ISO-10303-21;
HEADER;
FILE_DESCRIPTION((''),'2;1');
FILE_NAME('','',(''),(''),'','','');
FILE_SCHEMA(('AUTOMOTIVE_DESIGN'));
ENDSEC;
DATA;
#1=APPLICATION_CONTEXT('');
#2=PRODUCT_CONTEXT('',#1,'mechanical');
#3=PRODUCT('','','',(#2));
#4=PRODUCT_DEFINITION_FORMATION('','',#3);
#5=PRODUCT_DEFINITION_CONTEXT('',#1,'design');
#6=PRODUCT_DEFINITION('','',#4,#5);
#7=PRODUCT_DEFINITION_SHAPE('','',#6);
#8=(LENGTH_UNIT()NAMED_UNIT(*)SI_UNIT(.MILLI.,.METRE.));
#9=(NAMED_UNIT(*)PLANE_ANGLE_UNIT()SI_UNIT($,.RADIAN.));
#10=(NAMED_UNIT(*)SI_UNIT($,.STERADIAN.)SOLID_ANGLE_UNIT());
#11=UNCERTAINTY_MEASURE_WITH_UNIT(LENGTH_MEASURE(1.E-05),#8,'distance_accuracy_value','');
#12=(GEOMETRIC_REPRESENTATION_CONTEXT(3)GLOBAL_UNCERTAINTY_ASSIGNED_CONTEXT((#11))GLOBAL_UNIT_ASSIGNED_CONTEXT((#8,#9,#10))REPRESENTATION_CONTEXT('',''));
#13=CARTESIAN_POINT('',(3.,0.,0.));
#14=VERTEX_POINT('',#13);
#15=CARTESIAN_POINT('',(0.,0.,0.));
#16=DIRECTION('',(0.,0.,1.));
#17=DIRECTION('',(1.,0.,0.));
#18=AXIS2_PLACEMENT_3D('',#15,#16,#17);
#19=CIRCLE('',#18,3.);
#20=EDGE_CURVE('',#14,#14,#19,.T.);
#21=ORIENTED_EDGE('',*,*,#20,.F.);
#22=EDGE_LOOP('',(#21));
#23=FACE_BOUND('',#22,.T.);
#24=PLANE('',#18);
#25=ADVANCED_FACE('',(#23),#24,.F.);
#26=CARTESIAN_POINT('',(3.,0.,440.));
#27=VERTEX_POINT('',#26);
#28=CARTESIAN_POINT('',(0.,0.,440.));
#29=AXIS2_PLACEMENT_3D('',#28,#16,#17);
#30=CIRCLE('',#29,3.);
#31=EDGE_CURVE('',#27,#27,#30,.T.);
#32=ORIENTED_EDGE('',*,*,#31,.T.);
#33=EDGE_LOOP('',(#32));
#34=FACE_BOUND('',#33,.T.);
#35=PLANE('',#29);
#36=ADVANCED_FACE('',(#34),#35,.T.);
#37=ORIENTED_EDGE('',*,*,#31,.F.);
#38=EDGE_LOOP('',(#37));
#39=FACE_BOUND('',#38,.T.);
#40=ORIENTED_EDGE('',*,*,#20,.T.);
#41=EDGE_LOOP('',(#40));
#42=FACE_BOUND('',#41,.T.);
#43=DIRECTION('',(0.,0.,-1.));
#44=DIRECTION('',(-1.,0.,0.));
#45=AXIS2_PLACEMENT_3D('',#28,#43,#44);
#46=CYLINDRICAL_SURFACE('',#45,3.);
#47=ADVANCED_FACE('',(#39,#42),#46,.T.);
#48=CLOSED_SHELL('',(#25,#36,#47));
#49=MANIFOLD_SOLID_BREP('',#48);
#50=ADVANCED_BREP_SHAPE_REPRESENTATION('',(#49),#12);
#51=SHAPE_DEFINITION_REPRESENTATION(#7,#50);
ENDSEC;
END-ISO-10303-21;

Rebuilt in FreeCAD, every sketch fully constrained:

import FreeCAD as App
import Part
import Sketcher
from FreeCAD import Vector
Q = App.Units.Quantity

doc = App.newDocument("Part")
body = doc.addObject("PartDesign::Body", "Body")

sketch1 = doc.addObject("Sketcher::SketchObject", "Sketch")
body.addObject(sketch1)
sketch1.AttachmentSupport = (doc.XY_Plane, [""])
sketch1.MapMode = "FlatFace"
sketch1.addGeometry(Part.Circle(Vector(0, 0, 0), Vector(0, 0, 1), 3), False)
sketch1.addConstraint([
    Sketcher.Constraint("Coincident", 0, 3, -1, 1),
    Sketcher.Constraint("Diameter", 0, Q("6 mm")),
])
pad1 = doc.addObject("PartDesign::Pad", "Pad")
body.addObject(pad1)
pad1.Profile = sketch1
pad1.Length = 440

doc.recompute()
